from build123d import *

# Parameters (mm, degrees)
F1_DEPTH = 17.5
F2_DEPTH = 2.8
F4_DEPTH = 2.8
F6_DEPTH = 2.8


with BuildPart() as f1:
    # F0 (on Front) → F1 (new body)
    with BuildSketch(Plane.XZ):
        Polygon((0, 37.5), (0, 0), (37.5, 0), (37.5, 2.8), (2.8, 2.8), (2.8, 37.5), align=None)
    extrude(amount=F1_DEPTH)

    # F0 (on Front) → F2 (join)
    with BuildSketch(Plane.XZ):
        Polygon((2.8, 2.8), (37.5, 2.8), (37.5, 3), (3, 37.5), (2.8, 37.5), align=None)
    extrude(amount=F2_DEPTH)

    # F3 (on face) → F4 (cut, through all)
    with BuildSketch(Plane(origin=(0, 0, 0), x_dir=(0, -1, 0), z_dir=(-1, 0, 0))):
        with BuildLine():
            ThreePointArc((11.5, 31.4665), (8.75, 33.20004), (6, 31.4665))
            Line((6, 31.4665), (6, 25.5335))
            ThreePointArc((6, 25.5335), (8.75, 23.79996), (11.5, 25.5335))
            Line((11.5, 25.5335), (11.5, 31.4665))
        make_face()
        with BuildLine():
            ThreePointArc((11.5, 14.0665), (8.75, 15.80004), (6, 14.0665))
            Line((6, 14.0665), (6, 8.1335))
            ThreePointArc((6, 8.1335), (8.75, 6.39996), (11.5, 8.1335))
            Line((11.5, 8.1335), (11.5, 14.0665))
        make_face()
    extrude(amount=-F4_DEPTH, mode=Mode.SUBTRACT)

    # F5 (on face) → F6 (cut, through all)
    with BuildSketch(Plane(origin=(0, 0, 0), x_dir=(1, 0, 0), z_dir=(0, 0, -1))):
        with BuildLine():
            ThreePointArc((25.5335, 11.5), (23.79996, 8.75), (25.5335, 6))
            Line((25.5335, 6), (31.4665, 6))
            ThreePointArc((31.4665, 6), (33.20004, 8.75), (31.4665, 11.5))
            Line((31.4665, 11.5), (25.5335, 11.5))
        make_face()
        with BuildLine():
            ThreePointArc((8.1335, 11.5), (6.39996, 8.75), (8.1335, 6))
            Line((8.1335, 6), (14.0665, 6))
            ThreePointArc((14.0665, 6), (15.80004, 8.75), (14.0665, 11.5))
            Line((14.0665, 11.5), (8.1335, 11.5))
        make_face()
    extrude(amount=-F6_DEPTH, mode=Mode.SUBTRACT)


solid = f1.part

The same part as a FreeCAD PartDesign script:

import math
import FreeCAD as App
import Part
import Sketcher

V = App.Vector
Q = App.Units.Quantity


def add_polygon(sketch, points):
    """Adds a closed chain of lines whose ends are joined by coincident constraints."""
    first, n = sketch.GeometryCount, len(points)
    for a, b in zip(points, points[1:] + points[:1]):
        sketch.addGeometry(Part.LineSegment(App.Vector(*a, 0), App.Vector(*b, 0)), False)
    for i in range(n):
        sketch.addConstraint(Sketcher.Constraint("Coincident", first + i, 2, first + (i + 1) % n, 1))

doc = App.newDocument("Part")
body = doc.addObject("PartDesign::Body", "Body")

sketch1 = body.newObject("Sketcher::SketchObject", "Sketch")
sketch1.AttachmentSupport = (doc.getObject("XZ_Plane"), [""])
sketch1.MapMode = "FlatFace"
add_polygon(sketch1, [(0, 37.5), (0, 0), (37.5, 0), (37.5, 2.8), (2.8, 2.8), (2.8, 37.5)])
sketch1.addConstraint(Sketcher.Constraint("Vertical", 0))
sketch1.addConstraint(Sketcher.Constraint("Horizontal", 1))
sketch1.addConstraint(Sketcher.Constraint("Vertical", 2))
sketch1.addConstraint(Sketcher.Constraint("Horizontal", 3))
sketch1.addConstraint(Sketcher.Constraint("Vertical", 4))
sketch1.addConstraint(Sketcher.Constraint("Horizontal", 5))
sketch1.addConstraint(Sketcher.Constraint("Coincident", 0, 2, -1, 1))
sketch1.addConstraint(Sketcher.Constraint("Equal", 1, 0))
sketch1.addConstraint(Sketcher.Constraint("Equal", 5, 2))
sketch1.addConstraint(Sketcher.Constraint("DistanceX", 1, 1, 1, 2, Q("37.5 mm")))
sketch1.addConstraint(Sketcher.Constraint("DistanceX", 3, 2, 3, 1, Q("34.7 mm")))
pad1 = body.newObject("PartDesign::Pad", "Pad")
pad1.Profile = sketch1
pad1.Length = 17.5

sketch2 = body.newObject("Sketcher::SketchObject", "Sketch001")
sketch2.AttachmentSupport = (doc.getObject("XZ_Plane"), [""])
sketch2.MapMode = "FlatFace"
add_polygon(sketch2, [(2.8, 2.8), (37.5, 2.8), (37.5, 3), (3, 37.5), (2.8, 37.5)])
sketch2.addConstraint(Sketcher.Constraint("Horizontal", 0))
sketch2.addConstraint(Sketcher.Constraint("Vertical", 1))
sketch2.addConstraint(Sketcher.Constraint("Horizontal", 3))
sketch2.addConstraint(Sketcher.Constraint("Vertical", 4))
sketch2.addConstraint(Sketcher.Constraint("Equal", 3, 1))
sketch2.addConstraint(Sketcher.Constraint("Equal", 0, 4))
sketch2.addConstraint(Sketcher.Constraint("DistanceX", 0, 1, 0, 2, Q("34.7 mm")))
sketch2.addConstraint(Sketcher.Constraint("DistanceX", 3, 2, 3, 1, Q("0.2 mm")))
sketch2.addConstraint(Sketcher.Constraint("DistanceY", -1, 1, 1, 2, Q("3 mm")))
sketch2.addConstraint(Sketcher.Constraint("DistanceX", -1, 1, 2, 2, Q("3 mm")))
pad2 = body.newObject("PartDesign::Pad", "Pad001")
pad2.Profile = sketch2
pad2.Length = 2.8

sketch3 = body.newObject("Sketcher::SketchObject", "Sketch002")
sketch3.AttachmentSupport = (doc.getObject("YZ_Plane"), [""])
sketch3.MapMode = "FlatFace"
sketch3.addGeometry(Part.ArcOfCircle(Part.Circle(V(-8.8, 30.2, 0), V(0, 0, 1), 3), math.radians(26), math.radians(154)), False)
sketch3.addGeometry(Part.LineSegment(V(-6, 31.5, 0), V(-6, 25.5, 0)), False)
sketch3.addGeometry(Part.ArcOfCircle(Part.Circle(V(-8.8, 26.8, 0), V(0, 0, 1), 3), math.radians(-154), math.radians(-26)), False)
sketch3.addGeometry(Part.LineSegment(V(-11.5, 25.5, 0), V(-11.5, 31.5, 0)), False)
sketch3.addGeometry(Part.ArcOfCircle(Part.Circle(V(-8.8, 12.8, 0), V(0, 0, 1), 3), math.radians(26), math.radians(154)), False)
sketch3.addGeometry(Part.LineSegment(V(-6, 14.1, 0), V(-6, 8.1, 0)), False)
sketch3.addGeometry(Part.ArcOfCircle(Part.Circle(V(-8.8, 9.4, 0), V(0, 0, 1), 3), math.radians(-154), math.radians(-26)), False)
sketch3.addGeometry(Part.LineSegment(V(-11.5, 8.1, 0), V(-11.5, 14.1, 0)), False)
sketch3.addConstraint(Sketcher.Constraint("Coincident", 0, 1, 1, 1))
sketch3.addConstraint(Sketcher.Constraint("Coincident", 1, 2, 2, 2))
sketch3.addConstraint(Sketcher.Constraint("Coincident", 2, 1, 3, 1))
sketch3.addConstraint(Sketcher.Constraint("Coincident", 3, 2, 0, 2))
sketch3.addConstraint(Sketcher.Constraint("Coincident", 4, 1, 5, 1))
sketch3.addConstraint(Sketcher.Constraint("Coincident", 5, 2, 6, 2))
sketch3.addConstraint(Sketcher.Constraint("Coincident", 6, 1, 7, 1))
sketch3.addConstraint(Sketcher.Constraint("Coincident", 7, 2, 4, 2))
sketch3.addConstraint(Sketcher.Constraint("Vertical", 1))
sketch3.addConstraint(Sketcher.Constraint("Vertical", 3))
sketch3.addConstraint(Sketcher.Constraint("Vertical", 5))
sketch3.addConstraint(Sketcher.Constraint("Vertical", 7))
sketch3.addConstraint(Sketcher.Constraint("Equal", 0, 2))
sketch3.addConstraint(Sketcher.Constraint("Equal", 2, 4))
sketch3.addConstraint(Sketcher.Constraint("Equal", 4, 6))
sketch3.addConstraint(Sketcher.Constraint("Horizontal", 1, 2, 2, 1))
sketch3.addConstraint(Sketcher.Constraint("Horizontal", 0, 1, 3, 2))
sketch3.addConstraint(Sketcher.Constraint("Horizontal", 5, 2, 6, 1))
sketch3.addConstraint(Sketcher.Constraint("Horizontal", 4, 1, 7, 2))
sketch3.addConstraint(Sketcher.Constraint("Vertical", 2, 3, 4, 3))
sketch3.addConstraint(Sketcher.Constraint("Vertical", 1, 2, 4, 1))
sketch3.addConstraint(Sketcher.Constraint("Equal", 3, 5))
sketch3.addConstraint(Sketcher.Constraint("DistanceX", 0, 1, -1, 1, Q("6 mm")))
sketch3.addConstraint(Sketcher.Constraint("Radius", 0, Q("3.048 mm")))
sketch3.addConstraint(Sketcher.Constraint("DistanceX", 2, 1, -1, 1, Q("11.5 mm")))
sketch3.addConstraint(Sketcher.Constraint("DistanceY", 4, 3, 0, 3, Q("17.4 mm")))
sketch3.addConstraint(Sketcher.Constraint("DistanceY", 1, 2, 1, 1, Q("5.933 mm")))
sketch3.addConstraint(Sketcher.Constraint("DistanceY", -1, 1, 0, 1, Q("31.4665 mm")))
pocket1 = body.newObject("PartDesign::Pocket", "Pocket")
pocket1.Profile = sketch3
pocket1.Type = "ThroughAll"
pocket1.Reversed = True

sketch4 = body.newObject("Sketcher::SketchObject", "Sketch003")
sketch4.AttachmentSupport = (doc.getObject("XY_Plane"), [""])
sketch4.MapMode = "FlatFace"
sketch4.addGeometry(Part.ArcOfCircle(Part.Circle(V(26.8, -8.8, 0), V(0, 0, 1), 3), math.radians(116), math.radians(244)), False)
sketch4.addGeometry(Part.LineSegment(V(25.5, -6, 0), V(31.5, -6, 0)), False)
sketch4.addGeometry(Part.ArcOfCircle(Part.Circle(V(30.2, -8.8, 0), V(0, 0, 1), 3), math.radians(-64), math.radians(64)), False)
sketch4.addGeometry(Part.LineSegment(V(31.5, -11.5, 0), V(25.5, -11.5, 0)), False)
sketch4.addGeometry(Part.ArcOfCircle(Part.Circle(V(9.4, -8.8, 0), V(0, 0, 1), 3), math.radians(116), math.radians(244)), False)
sketch4.addGeometry(Part.LineSegment(V(8.1, -6, 0), V(14.1, -6, 0)), False)
sketch4.addGeometry(Part.ArcOfCircle(Part.Circle(V(12.8, -8.8, 0), V(0, 0, 1), 3), math.radians(-64), math.radians(64)), False)
sketch4.addGeometry(Part.LineSegment(V(14.1, -11.5, 0), V(8.1, -11.5, 0)), False)
sketch4.addConstraint(Sketcher.Constraint("Coincident", 0, 1, 1, 1))
sketch4.addConstraint(Sketcher.Constraint("Coincident", 1, 2, 2, 2))
sketch4.addConstraint(Sketcher.Constraint("Coincident", 2, 1, 3, 1))
sketch4.addConstraint(Sketcher.Constraint("Coincident", 3, 2, 0, 2))
sketch4.addConstraint(Sketcher.Constraint("Coincident", 4, 1, 5, 1))
sketch4.addConstraint(Sketcher.Constraint("Coincident", 5, 2, 6, 2))
sketch4.addConstraint(Sketcher.Constraint("Coincident", 6, 1, 7, 1))
sketch4.addConstraint(Sketcher.Constraint("Coincident", 7, 2, 4, 2))
sketch4.addConstraint(Sketcher.Constraint("Horizontal", 1))
sketch4.addConstraint(Sketcher.Constraint("Horizontal", 3))
sketch4.addConstraint(Sketcher.Constraint("Horizontal", 5))
sketch4.addConstraint(Sketcher.Constraint("Horizontal", 7))
sketch4.addConstraint(Sketcher.Constraint("Equal", 0, 2))
sketch4.addConstraint(Sketcher.Constraint("Equal", 2, 4))
sketch4.addConstraint(Sketcher.Constraint("Equal", 4, 6))
sketch4.addConstraint(Sketcher.Constraint("Horizontal", 0, 3, 2, 3))
sketch4.addConstraint(Sketcher.Constraint("Horizontal", 2, 3, 4, 3))
sketch4.addConstraint(Sketcher.Constraint("Horizontal", 4, 3, 6, 3))
sketch4.addConstraint(Sketcher.Constraint("Horizontal", 1, 2, 4, 1))
sketch4.addConstraint(Sketcher.Constraint("Horizontal", 3, 2, 6, 1))
sketch4.addConstraint(Sketcher.Constraint("Vertical", 1, 2, 2, 1))
sketch4.addConstraint(Sketcher.Constraint("Equal", 3, 5))
sketch4.addConstraint(Sketcher.Constraint("DistanceY", 0, 1, -1, 1, Q("6 mm")))
sketch4.addConstraint(Sketcher.Constraint("Radius", 0, Q("3.048 mm")))
sketch4.addConstraint(Sketcher.Constraint("DistanceY", 2, 1, -1, 1, Q("11.5 mm")))
sketch4.addConstraint(Sketcher.Constraint("DistanceX", 4, 3, 0, 3, Q("17.4 mm")))
sketch4.addConstraint(Sketcher.Constraint("DistanceX", 1, 1, 1, 2, Q("5.933 mm")))
sketch4.addConstraint(Sketcher.Constraint("DistanceX", -1, 1, 0, 1, Q("25.5335 mm")))
pocket2 = body.newObject("PartDesign::Pocket", "Pocket001")
pocket2.Profile = sketch4
pocket2.Type = "ThroughAll"
pocket2.Reversed = True

doc.recompute()
